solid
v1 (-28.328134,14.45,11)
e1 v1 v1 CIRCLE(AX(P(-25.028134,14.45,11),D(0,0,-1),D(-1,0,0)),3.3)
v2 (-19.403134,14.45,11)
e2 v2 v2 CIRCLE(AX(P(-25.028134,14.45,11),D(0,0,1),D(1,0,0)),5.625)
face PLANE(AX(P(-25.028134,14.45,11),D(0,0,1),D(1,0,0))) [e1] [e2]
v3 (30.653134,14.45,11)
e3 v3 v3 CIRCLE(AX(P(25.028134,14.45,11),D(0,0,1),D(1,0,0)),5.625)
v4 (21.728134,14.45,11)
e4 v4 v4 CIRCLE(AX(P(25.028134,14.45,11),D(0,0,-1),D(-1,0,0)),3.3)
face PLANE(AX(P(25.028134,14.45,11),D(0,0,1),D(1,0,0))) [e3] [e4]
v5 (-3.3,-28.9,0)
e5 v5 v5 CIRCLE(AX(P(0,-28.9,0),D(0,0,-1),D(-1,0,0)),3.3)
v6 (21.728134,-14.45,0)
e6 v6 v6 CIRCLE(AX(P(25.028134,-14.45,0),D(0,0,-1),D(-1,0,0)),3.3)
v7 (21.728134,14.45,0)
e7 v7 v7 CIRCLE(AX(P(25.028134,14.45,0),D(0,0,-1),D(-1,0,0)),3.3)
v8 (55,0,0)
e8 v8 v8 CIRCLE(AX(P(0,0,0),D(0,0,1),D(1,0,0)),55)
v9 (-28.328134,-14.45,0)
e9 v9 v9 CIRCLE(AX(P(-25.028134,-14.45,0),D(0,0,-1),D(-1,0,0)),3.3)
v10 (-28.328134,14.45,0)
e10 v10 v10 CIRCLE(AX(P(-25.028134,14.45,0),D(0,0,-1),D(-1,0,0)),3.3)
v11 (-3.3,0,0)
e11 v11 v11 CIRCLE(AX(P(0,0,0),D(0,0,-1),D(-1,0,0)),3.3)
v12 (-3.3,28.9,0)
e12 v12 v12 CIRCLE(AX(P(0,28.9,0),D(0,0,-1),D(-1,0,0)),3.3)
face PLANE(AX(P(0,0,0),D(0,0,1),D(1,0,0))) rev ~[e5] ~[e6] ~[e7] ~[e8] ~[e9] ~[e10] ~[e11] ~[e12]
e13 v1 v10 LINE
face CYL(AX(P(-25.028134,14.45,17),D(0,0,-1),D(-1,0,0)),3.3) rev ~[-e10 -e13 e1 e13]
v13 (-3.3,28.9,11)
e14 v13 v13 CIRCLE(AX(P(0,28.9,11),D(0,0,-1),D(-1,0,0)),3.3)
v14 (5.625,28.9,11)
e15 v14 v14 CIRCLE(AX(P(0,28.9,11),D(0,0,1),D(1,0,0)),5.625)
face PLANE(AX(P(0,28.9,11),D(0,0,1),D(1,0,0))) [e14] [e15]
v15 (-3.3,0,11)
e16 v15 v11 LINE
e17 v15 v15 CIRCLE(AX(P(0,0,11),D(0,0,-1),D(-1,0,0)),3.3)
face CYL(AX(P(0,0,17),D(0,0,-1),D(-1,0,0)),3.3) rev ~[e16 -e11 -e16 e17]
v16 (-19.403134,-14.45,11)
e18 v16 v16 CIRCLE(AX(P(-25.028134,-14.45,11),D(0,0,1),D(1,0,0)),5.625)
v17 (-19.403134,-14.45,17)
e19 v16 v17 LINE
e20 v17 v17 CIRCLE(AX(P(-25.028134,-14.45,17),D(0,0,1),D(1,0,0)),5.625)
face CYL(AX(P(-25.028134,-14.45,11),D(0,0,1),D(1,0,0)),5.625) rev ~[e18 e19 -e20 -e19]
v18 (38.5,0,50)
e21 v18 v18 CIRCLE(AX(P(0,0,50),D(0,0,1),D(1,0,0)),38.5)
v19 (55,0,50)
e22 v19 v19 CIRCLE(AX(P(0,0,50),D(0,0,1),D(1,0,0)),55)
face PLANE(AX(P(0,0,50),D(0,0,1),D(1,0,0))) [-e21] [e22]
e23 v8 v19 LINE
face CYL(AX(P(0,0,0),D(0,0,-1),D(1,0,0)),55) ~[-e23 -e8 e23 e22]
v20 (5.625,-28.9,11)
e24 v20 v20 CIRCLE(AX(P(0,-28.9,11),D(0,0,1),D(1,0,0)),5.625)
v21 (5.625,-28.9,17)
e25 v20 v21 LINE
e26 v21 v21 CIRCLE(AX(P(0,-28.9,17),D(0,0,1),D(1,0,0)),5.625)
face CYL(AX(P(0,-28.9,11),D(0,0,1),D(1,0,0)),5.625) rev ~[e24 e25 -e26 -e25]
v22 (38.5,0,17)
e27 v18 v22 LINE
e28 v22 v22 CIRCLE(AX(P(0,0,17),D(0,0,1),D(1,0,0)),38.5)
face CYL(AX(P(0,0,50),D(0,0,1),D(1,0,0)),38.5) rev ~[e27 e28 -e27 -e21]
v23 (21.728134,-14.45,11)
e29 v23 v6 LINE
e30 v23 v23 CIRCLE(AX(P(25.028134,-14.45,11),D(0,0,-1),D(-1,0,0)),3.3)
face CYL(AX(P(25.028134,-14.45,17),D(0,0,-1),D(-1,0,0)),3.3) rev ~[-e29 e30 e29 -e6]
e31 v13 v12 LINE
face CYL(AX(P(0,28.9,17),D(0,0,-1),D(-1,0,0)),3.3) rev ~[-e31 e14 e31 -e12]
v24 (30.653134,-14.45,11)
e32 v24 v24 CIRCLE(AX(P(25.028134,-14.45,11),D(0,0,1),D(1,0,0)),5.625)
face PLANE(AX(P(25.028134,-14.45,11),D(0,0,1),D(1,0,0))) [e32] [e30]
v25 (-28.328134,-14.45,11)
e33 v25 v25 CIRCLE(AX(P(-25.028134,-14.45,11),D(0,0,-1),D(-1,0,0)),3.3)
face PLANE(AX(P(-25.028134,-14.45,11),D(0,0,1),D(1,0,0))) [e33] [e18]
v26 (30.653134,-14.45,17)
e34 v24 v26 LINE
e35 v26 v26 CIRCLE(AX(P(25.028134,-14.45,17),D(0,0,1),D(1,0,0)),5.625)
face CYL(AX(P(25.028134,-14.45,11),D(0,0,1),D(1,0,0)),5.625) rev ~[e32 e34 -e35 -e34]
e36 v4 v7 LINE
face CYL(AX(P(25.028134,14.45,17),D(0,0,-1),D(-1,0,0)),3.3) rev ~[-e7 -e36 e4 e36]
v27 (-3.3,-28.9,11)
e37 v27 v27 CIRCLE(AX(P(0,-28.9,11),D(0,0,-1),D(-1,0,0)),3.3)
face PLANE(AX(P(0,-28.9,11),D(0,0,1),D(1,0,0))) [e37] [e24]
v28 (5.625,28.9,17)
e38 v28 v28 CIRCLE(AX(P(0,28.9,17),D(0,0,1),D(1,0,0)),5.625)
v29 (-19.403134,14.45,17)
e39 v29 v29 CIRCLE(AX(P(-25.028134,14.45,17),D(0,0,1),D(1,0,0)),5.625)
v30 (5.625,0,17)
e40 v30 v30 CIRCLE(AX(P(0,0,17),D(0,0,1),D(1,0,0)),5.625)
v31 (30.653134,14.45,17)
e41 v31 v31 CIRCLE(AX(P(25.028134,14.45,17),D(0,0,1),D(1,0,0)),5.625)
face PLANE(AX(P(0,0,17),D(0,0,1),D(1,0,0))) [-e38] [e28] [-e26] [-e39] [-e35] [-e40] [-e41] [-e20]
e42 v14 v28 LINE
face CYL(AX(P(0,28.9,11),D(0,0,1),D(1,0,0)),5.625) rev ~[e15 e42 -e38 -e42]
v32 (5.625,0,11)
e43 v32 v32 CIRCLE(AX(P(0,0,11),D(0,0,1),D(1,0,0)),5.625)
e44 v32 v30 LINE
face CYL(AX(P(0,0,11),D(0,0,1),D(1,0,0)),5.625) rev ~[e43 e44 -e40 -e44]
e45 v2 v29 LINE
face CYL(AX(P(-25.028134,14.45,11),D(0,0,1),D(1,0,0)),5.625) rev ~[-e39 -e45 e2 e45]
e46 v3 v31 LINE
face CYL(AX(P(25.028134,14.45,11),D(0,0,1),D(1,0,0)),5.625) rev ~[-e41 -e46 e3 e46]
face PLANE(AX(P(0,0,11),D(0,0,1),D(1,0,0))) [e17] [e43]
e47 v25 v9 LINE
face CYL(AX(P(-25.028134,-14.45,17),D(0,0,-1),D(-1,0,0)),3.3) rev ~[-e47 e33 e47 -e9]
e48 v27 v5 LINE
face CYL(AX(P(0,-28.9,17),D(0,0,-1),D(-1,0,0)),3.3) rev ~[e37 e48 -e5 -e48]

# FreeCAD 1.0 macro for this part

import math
import FreeCAD as App
import Part
import Sketcher
from FreeCAD import Vector
Q = App.Units.Quantity

doc = App.newDocument("Part")
body = doc.addObject("PartDesign::Body", "Body")

# Sketch on XY plane
sketch1 = body.newObject("Sketcher::SketchObject", "Sketch")
sketch1.AttachmentSupport = (doc.getObject("XY_Plane"), [""])
sketch1.MapMode = "FlatFace"
sketch1.addGeometry([
    Part.Circle(Vector(0, 0, 0), Vector(0, 0, 1), 55),  # 0
    Part.ArcOfCircle(Part.Circle(Vector(0, -28.9, 0), Vector(0, 0, 1), 3), math.radians(150), math.radians(360)),  # 1
    Part.ArcOfCircle(Part.Circle(Vector(0, -28.9, 0), Vector(0, 0, 1), 3), math.radians(30), math.radians(150)),  # 2
    Part.ArcOfCircle(Part.Circle(Vector(0, -28.9, 0), Vector(0, 0, 1), 3), math.radians(0), math.radians(30)),  # 3
    Part.ArcOfCircle(Part.Circle(Vector(-25, -14.4, 0), Vector(0, 0, 1), 3), math.radians(90), math.radians(330)),  # 4
    Part.ArcOfCircle(Part.Circle(Vector(-25, -14.4, 0), Vector(0, 0, 1), 3), math.radians(0), math.radians(90)),  # 5
    Part.ArcOfCircle(Part.Circle(Vector(-25, -14.4, 0), Vector(0, 0, 1), 3), math.radians(-30), math.radians(0)),  # 6
    Part.Circle(Vector(0, 0, 0), Vector(0, 0, 1), 3),  # 7
    Part.ArcOfCircle(Part.Circle(Vector(25, -14.4, 0), Vector(0, 0, 1), 3), math.radians(0), math.radians(90)),  # 8
    Part.ArcOfCircle(Part.Circle(Vector(25, -14.4, 0), Vector(0, 0, 1), 3), math.radians(-150), math.radians(0)),  # 9
    Part.ArcOfCircle(Part.Circle(Vector(25, -14.4, 0), Vector(0, 0, 1), 3), math.radians(90), math.radians(210)),  # 10
    Part.ArcOfCircle(Part.Circle(Vector(-25, 14.4, 0), Vector(0, 0, 1), 3), math.radians(30), math.radians(270)),  # 11
    Part.ArcOfCircle(Part.Circle(Vector(-25, 14.4, 0), Vector(0, 0, 1), 3), math.radians(0), math.radians(30)),  # 12
    Part.ArcOfCircle(Part.Circle(Vector(-25, 14.4, 0), Vector(0, 0, 1), 3), math.radians(-90), math.radians(0)),  # 13
    Part.ArcOfCircle(Part.Circle(Vector(0, 28.9, 0), Vector(0, 0, 1), 3), math.radians(-30), math.radians(0)),  # 14
    Part.ArcOfCircle(Part.Circle(Vector(0, 28.9, 0), Vector(0, 0, 1), 3), math.radians(-150), math.radians(-30)),  # 15
    Part.ArcOfCircle(Part.Circle(Vector(0, 28.9, 0), Vector(0, 0, 1), 3), math.radians(0), math.radians(210)),  # 16
    Part.ArcOfCircle(Part.Circle(Vector(25, 14.4, 0), Vector(0, 0, 1), 3), math.radians(-90), math.radians(0)),  # 17
    Part.ArcOfCircle(Part.Circle(Vector(25, 14.4, 0), Vector(0, 0, 1), 3), math.radians(150), math.radians(270)),  # 18
    Part.ArcOfCircle(Part.Circle(Vector(25, 14.4, 0), Vector(0, 0, 1), 3), math.radians(0), math.radians(150)),  # 19
], False)
sketch1.addConstraint([
    Sketcher.Constraint("Tangent", 1, 1, 2, 2),
    Sketcher.Constraint("Tangent", 2, 1, 3, 2),
    Sketcher.Constraint("Tangent", 3, 1, 1, 2),
    Sketcher.Constraint("Tangent", 4, 1, 5, 2),
    Sketcher.Constraint("Tangent", 5, 1, 6, 2),
    Sketcher.Constraint("Tangent", 6, 1, 4, 2),
    Sketcher.Constraint("Tangent", 8, 1, 9, 2),
    Sketcher.Constraint("Tangent", 9, 1, 10, 2),
    Sketcher.Constraint("Tangent", 10, 1, 8, 2),
    Sketcher.Constraint("Tangent", 11, 1, 12, 2),
    Sketcher.Constraint("Tangent", 12, 1, 13, 2),
    Sketcher.Constraint("Tangent", 13, 1, 11, 2),
    Sketcher.Constraint("Tangent", 14, 1, 15, 2),
    Sketcher.Constraint("Tangent", 15, 1, 16, 2),
    Sketcher.Constraint("Tangent", 16, 1, 14, 2),
    Sketcher.Constraint("Tangent", 17, 1, 18, 2),
    Sketcher.Constraint("Tangent", 18, 1, 19, 2),
    Sketcher.Constraint("Tangent", 19, 1, 17, 2),
    Sketcher.Constraint("Coincident", 0, 3, -1, 1),
    Sketcher.Constraint("Coincident", 7, 3, -1, 1),
    Sketcher.Constraint("Equal", 3, 4),
    Sketcher.Constraint("Equal", 6, 7),
    Sketcher.Constraint("Equal", 7, 8),
    Sketcher.Constraint("Equal", 10, 11),
    Sketcher.Constraint("Equal", 13, 14),
    Sketcher.Constraint("Equal", 16, 17),
    Sketcher.Constraint("Symmetric", 8, 3, 11, 3, -1, 1),
    Sketcher.Constraint("Symmetric", 1, 3, 14, 3, -1, 1),
    Sketcher.Constraint("Symmetric", 4, 3, 17, 3, -1, 1),
    Sketcher.Constraint("Symmetric", 4, 3, 8, 3, -2),
    Sketcher.Constraint("Symmetric", 1, 1, 2, 1, -2),
    Sketcher.Constraint("Horizontal", 2, 3, 3, 1),
    Sketcher.Constraint("Horizontal", 10, 3, 5, 1),
    Sketcher.Constraint("Horizontal", 5, 1, 8, 1),
    Sketcher.Constraint("Horizontal", 6, 1, 9, 1),
    Sketcher.Constraint("Horizontal", 19, 3, 12, 1),
    Sketcher.Constraint("Horizontal", 14, 1, 15, 1),
    Sketcher.Constraint("Horizontal", 15, 3, 16, 1),
    Sketcher.Constraint("Horizontal", 11, 1, 18, 1),
    Sketcher.Constraint("Horizontal", 12, 1, 19, 1),
    Sketcher.Constraint("Vertical", 13, 3, 4, 1),
    Sketcher.Constraint("Vertical", 19, 3, 10, 1),
    Sketcher.Constraint("Vertical", 6, 1, 11, 1),
    Sketcher.Constraint("Vertical", 4, 1, 13, 1),
    Sketcher.Constraint("Vertical", 2, 1, 14, 1),
    Sketcher.Constraint("Vertical", 10, 1, 17, 1),
    Sketcher.Constraint("Diameter", 0, Q("110 mm")),
    Sketcher.Constraint("Diameter", 7, Q("6 mm")),
    Sketcher.Constraint("DistanceY", 1, 3, -1, 1, Q("28.9 mm")),
    Sketcher.Constraint("DistanceY", 1, 1, -1, 1, Q("27.4 mm")),
    Sketcher.Constraint("DistanceY", 4, 3, 11, 3, Q("28.9 mm")),
    Sketcher.Constraint("DistanceY", 6, 1, 5, 1, Q("1.5 mm")),
    Sketcher.Constraint("DistanceX", 2, 1, 9, 1, Q("19.831982 mm")),
])
pad1 = body.newObject("PartDesign::Pad", "Pad")
pad1.Profile = sketch1
pad1.Length = 50

# Sketch on XY plane
sketch2 = body.newObject("Sketcher::SketchObject", "Sketch001")
sketch2.AttachmentSupport = (doc.getObject("XY_Plane"), [""])
sketch2.MapMode = "FlatFace"
sketch2.AttachmentOffset = App.Placement(Vector(0, 0, 50), App.Rotation())
sketch2.addGeometry([
    Part.Circle(Vector(0, 0, 0), Vector(0, 0, 1), 38.5),  # 0
    Part.Circle(Vector(-25, -14.4, 0), Vector(0, 0, 1), 3),  # 1
    Part.Circle(Vector(0, -28.9, 0), Vector(0, 0, 1), 3),  # 2
    Part.Circle(Vector(25, -14.4, 0), Vector(0, 0, 1), 3),  # 3
    Part.Circle(Vector(-25, 14.4, 0), Vector(0, 0, 1), 3),  # 4
    Part.Circle(Vector(0, 0, 0), Vector(0, 0, 1), 3),  # 5
    Part.Circle(Vector(25, 14.4, 0), Vector(0, 0, 1), 3),  # 6
    Part.Circle(Vector(0, 28.9, 0), Vector(0, 0, 1), 3),  # 7
], False)
sketch2.addConstraint([
    Sketcher.Constraint("Coincident", 0, 3, -1, 1),
    Sketcher.Constraint("Coincident", 5, 3, -1, 1),
    Sketcher.Constraint("Equal", 1, 2),
    Sketcher.Constraint("Equal", 2, 3),
    Sketcher.Constraint("Equal", 3, 4),
    Sketcher.Constraint("Equal", 4, 5),
    Sketcher.Constraint("Equal", 5, 6),
    Sketcher.Constraint("Equal", 6, 7),
    Sketcher.Constraint("Symmetric", 3, 3, 4, 3, -1, 1),
    Sketcher.Constraint("Symmetric", 1, 3, 6, 3, -1, 1),
    Sketcher.Constraint("Symmetric", 2, 3, 7, 3, -1, 1),
    Sketcher.Constraint("Symmetric", 1, 3, 3, 3, -2),
    Sketcher.Constraint("PointOnObject", 2, 3, -2),
    Sketcher.Constraint("Diameter", 0, Q("77 mm")),
    Sketcher.Constraint("Diameter", 1, Q("6 mm")),
    Sketcher.Constraint("DistanceY", 2, 3, -1, 1, Q("28.9 mm")),
    Sketcher.Constraint("DistanceY", 1, 3, 4, 3, Q("28.9 mm")),
    Sketcher.Constraint("DistanceX", 1, 3, 3, 3, Q("50.056268 mm")),
])
pocket1 = body.newObject("PartDesign::Pocket", "Pocket")
pocket1.Profile = sketch2
pocket1.Length = 33

# Sketch on XY plane
sketch3 = body.newObject("Sketcher::SketchObject", "Sketch002")
sketch3.AttachmentSupport = (doc.getObject("XY_Plane"), [""])
sketch3.MapMode = "FlatFace"
sketch3.AttachmentOffset = App.Placement(Vector(0, 0, 17), App.Rotation())
sketch3.addGeometry([
    Part.Circle(Vector(-25, 14.4, 0), Vector(0, 0, 1), 3.3),  # 0
    Part.Circle(Vector(-25, -14.4, 0), Vector(0, 0, 1), 3.3),  # 1
    Part.Circle(Vector(0, -28.9, 0), Vector(0, 0, 1), 3.3),  # 2
    Part.Circle(Vector(25, -14.4, 0), Vector(0, 0, 1), 3.3),  # 3
    Part.Circle(Vector(25, 14.4, 0), Vector(0, 0, 1), 3.3),  # 4
    Part.Circle(Vector(0, 28.9, 0), Vector(0, 0, 1), 3.3),  # 5
    Part.Circle(Vector(0, 0, 0), Vector(0, 0, 1), 3.3),  # 6
], False)
sketch3.addConstraint([
    Sketcher.Constraint("Coincident", 6, 3, -1, 1),
    Sketcher.Constraint("Equal", 0, 1),
    Sketcher.Constraint("Equal", 1, 2),
    Sketcher.Constraint("Equal", 2, 3),
    Sketcher.Constraint("Equal", 3, 4),
    Sketcher.Constraint("Equal", 4, 5),
    Sketcher.Constraint("Equal", 5, 6),
    Sketcher.Constraint("Symmetric", 0, 3, 3, 3, -1, 1),
    Sketcher.Constraint("Symmetric", 1, 3, 4, 3, -1, 1),
    Sketcher.Constraint("Symmetric", 2, 3, 5, 3, -1, 1),
    Sketcher.Constraint("Symmetric", 1, 3, 3, 3, -2),
    Sketcher.Constraint("PointOnObject", 2, 3, -2),
    Sketcher.Constraint("Diameter", 0, Q("6.6 mm")),
    Sketcher.Constraint("DistanceY", 2, 3, -1, 1, Q("28.9 mm")),
    Sketcher.Constraint("DistanceY", 1, 3, 0, 3, Q("28.9 mm")),
    Sketcher.Constraint("DistanceX", 1, 3, 3, 3, Q("50.056268 mm")),
])
doc.recompute()
hole = body.newObject("PartDesign::Hole", "Hole")
hole.Profile = sketch3
hole.ThreadType = "None"
hole.Diameter = 6.6
hole.DepthType = "ThroughAll"
hole.HoleCutType = "Counterbore"
hole.HoleCutDiameter = 11.25
hole.HoleCutDepth = 6

doc.recompute()
